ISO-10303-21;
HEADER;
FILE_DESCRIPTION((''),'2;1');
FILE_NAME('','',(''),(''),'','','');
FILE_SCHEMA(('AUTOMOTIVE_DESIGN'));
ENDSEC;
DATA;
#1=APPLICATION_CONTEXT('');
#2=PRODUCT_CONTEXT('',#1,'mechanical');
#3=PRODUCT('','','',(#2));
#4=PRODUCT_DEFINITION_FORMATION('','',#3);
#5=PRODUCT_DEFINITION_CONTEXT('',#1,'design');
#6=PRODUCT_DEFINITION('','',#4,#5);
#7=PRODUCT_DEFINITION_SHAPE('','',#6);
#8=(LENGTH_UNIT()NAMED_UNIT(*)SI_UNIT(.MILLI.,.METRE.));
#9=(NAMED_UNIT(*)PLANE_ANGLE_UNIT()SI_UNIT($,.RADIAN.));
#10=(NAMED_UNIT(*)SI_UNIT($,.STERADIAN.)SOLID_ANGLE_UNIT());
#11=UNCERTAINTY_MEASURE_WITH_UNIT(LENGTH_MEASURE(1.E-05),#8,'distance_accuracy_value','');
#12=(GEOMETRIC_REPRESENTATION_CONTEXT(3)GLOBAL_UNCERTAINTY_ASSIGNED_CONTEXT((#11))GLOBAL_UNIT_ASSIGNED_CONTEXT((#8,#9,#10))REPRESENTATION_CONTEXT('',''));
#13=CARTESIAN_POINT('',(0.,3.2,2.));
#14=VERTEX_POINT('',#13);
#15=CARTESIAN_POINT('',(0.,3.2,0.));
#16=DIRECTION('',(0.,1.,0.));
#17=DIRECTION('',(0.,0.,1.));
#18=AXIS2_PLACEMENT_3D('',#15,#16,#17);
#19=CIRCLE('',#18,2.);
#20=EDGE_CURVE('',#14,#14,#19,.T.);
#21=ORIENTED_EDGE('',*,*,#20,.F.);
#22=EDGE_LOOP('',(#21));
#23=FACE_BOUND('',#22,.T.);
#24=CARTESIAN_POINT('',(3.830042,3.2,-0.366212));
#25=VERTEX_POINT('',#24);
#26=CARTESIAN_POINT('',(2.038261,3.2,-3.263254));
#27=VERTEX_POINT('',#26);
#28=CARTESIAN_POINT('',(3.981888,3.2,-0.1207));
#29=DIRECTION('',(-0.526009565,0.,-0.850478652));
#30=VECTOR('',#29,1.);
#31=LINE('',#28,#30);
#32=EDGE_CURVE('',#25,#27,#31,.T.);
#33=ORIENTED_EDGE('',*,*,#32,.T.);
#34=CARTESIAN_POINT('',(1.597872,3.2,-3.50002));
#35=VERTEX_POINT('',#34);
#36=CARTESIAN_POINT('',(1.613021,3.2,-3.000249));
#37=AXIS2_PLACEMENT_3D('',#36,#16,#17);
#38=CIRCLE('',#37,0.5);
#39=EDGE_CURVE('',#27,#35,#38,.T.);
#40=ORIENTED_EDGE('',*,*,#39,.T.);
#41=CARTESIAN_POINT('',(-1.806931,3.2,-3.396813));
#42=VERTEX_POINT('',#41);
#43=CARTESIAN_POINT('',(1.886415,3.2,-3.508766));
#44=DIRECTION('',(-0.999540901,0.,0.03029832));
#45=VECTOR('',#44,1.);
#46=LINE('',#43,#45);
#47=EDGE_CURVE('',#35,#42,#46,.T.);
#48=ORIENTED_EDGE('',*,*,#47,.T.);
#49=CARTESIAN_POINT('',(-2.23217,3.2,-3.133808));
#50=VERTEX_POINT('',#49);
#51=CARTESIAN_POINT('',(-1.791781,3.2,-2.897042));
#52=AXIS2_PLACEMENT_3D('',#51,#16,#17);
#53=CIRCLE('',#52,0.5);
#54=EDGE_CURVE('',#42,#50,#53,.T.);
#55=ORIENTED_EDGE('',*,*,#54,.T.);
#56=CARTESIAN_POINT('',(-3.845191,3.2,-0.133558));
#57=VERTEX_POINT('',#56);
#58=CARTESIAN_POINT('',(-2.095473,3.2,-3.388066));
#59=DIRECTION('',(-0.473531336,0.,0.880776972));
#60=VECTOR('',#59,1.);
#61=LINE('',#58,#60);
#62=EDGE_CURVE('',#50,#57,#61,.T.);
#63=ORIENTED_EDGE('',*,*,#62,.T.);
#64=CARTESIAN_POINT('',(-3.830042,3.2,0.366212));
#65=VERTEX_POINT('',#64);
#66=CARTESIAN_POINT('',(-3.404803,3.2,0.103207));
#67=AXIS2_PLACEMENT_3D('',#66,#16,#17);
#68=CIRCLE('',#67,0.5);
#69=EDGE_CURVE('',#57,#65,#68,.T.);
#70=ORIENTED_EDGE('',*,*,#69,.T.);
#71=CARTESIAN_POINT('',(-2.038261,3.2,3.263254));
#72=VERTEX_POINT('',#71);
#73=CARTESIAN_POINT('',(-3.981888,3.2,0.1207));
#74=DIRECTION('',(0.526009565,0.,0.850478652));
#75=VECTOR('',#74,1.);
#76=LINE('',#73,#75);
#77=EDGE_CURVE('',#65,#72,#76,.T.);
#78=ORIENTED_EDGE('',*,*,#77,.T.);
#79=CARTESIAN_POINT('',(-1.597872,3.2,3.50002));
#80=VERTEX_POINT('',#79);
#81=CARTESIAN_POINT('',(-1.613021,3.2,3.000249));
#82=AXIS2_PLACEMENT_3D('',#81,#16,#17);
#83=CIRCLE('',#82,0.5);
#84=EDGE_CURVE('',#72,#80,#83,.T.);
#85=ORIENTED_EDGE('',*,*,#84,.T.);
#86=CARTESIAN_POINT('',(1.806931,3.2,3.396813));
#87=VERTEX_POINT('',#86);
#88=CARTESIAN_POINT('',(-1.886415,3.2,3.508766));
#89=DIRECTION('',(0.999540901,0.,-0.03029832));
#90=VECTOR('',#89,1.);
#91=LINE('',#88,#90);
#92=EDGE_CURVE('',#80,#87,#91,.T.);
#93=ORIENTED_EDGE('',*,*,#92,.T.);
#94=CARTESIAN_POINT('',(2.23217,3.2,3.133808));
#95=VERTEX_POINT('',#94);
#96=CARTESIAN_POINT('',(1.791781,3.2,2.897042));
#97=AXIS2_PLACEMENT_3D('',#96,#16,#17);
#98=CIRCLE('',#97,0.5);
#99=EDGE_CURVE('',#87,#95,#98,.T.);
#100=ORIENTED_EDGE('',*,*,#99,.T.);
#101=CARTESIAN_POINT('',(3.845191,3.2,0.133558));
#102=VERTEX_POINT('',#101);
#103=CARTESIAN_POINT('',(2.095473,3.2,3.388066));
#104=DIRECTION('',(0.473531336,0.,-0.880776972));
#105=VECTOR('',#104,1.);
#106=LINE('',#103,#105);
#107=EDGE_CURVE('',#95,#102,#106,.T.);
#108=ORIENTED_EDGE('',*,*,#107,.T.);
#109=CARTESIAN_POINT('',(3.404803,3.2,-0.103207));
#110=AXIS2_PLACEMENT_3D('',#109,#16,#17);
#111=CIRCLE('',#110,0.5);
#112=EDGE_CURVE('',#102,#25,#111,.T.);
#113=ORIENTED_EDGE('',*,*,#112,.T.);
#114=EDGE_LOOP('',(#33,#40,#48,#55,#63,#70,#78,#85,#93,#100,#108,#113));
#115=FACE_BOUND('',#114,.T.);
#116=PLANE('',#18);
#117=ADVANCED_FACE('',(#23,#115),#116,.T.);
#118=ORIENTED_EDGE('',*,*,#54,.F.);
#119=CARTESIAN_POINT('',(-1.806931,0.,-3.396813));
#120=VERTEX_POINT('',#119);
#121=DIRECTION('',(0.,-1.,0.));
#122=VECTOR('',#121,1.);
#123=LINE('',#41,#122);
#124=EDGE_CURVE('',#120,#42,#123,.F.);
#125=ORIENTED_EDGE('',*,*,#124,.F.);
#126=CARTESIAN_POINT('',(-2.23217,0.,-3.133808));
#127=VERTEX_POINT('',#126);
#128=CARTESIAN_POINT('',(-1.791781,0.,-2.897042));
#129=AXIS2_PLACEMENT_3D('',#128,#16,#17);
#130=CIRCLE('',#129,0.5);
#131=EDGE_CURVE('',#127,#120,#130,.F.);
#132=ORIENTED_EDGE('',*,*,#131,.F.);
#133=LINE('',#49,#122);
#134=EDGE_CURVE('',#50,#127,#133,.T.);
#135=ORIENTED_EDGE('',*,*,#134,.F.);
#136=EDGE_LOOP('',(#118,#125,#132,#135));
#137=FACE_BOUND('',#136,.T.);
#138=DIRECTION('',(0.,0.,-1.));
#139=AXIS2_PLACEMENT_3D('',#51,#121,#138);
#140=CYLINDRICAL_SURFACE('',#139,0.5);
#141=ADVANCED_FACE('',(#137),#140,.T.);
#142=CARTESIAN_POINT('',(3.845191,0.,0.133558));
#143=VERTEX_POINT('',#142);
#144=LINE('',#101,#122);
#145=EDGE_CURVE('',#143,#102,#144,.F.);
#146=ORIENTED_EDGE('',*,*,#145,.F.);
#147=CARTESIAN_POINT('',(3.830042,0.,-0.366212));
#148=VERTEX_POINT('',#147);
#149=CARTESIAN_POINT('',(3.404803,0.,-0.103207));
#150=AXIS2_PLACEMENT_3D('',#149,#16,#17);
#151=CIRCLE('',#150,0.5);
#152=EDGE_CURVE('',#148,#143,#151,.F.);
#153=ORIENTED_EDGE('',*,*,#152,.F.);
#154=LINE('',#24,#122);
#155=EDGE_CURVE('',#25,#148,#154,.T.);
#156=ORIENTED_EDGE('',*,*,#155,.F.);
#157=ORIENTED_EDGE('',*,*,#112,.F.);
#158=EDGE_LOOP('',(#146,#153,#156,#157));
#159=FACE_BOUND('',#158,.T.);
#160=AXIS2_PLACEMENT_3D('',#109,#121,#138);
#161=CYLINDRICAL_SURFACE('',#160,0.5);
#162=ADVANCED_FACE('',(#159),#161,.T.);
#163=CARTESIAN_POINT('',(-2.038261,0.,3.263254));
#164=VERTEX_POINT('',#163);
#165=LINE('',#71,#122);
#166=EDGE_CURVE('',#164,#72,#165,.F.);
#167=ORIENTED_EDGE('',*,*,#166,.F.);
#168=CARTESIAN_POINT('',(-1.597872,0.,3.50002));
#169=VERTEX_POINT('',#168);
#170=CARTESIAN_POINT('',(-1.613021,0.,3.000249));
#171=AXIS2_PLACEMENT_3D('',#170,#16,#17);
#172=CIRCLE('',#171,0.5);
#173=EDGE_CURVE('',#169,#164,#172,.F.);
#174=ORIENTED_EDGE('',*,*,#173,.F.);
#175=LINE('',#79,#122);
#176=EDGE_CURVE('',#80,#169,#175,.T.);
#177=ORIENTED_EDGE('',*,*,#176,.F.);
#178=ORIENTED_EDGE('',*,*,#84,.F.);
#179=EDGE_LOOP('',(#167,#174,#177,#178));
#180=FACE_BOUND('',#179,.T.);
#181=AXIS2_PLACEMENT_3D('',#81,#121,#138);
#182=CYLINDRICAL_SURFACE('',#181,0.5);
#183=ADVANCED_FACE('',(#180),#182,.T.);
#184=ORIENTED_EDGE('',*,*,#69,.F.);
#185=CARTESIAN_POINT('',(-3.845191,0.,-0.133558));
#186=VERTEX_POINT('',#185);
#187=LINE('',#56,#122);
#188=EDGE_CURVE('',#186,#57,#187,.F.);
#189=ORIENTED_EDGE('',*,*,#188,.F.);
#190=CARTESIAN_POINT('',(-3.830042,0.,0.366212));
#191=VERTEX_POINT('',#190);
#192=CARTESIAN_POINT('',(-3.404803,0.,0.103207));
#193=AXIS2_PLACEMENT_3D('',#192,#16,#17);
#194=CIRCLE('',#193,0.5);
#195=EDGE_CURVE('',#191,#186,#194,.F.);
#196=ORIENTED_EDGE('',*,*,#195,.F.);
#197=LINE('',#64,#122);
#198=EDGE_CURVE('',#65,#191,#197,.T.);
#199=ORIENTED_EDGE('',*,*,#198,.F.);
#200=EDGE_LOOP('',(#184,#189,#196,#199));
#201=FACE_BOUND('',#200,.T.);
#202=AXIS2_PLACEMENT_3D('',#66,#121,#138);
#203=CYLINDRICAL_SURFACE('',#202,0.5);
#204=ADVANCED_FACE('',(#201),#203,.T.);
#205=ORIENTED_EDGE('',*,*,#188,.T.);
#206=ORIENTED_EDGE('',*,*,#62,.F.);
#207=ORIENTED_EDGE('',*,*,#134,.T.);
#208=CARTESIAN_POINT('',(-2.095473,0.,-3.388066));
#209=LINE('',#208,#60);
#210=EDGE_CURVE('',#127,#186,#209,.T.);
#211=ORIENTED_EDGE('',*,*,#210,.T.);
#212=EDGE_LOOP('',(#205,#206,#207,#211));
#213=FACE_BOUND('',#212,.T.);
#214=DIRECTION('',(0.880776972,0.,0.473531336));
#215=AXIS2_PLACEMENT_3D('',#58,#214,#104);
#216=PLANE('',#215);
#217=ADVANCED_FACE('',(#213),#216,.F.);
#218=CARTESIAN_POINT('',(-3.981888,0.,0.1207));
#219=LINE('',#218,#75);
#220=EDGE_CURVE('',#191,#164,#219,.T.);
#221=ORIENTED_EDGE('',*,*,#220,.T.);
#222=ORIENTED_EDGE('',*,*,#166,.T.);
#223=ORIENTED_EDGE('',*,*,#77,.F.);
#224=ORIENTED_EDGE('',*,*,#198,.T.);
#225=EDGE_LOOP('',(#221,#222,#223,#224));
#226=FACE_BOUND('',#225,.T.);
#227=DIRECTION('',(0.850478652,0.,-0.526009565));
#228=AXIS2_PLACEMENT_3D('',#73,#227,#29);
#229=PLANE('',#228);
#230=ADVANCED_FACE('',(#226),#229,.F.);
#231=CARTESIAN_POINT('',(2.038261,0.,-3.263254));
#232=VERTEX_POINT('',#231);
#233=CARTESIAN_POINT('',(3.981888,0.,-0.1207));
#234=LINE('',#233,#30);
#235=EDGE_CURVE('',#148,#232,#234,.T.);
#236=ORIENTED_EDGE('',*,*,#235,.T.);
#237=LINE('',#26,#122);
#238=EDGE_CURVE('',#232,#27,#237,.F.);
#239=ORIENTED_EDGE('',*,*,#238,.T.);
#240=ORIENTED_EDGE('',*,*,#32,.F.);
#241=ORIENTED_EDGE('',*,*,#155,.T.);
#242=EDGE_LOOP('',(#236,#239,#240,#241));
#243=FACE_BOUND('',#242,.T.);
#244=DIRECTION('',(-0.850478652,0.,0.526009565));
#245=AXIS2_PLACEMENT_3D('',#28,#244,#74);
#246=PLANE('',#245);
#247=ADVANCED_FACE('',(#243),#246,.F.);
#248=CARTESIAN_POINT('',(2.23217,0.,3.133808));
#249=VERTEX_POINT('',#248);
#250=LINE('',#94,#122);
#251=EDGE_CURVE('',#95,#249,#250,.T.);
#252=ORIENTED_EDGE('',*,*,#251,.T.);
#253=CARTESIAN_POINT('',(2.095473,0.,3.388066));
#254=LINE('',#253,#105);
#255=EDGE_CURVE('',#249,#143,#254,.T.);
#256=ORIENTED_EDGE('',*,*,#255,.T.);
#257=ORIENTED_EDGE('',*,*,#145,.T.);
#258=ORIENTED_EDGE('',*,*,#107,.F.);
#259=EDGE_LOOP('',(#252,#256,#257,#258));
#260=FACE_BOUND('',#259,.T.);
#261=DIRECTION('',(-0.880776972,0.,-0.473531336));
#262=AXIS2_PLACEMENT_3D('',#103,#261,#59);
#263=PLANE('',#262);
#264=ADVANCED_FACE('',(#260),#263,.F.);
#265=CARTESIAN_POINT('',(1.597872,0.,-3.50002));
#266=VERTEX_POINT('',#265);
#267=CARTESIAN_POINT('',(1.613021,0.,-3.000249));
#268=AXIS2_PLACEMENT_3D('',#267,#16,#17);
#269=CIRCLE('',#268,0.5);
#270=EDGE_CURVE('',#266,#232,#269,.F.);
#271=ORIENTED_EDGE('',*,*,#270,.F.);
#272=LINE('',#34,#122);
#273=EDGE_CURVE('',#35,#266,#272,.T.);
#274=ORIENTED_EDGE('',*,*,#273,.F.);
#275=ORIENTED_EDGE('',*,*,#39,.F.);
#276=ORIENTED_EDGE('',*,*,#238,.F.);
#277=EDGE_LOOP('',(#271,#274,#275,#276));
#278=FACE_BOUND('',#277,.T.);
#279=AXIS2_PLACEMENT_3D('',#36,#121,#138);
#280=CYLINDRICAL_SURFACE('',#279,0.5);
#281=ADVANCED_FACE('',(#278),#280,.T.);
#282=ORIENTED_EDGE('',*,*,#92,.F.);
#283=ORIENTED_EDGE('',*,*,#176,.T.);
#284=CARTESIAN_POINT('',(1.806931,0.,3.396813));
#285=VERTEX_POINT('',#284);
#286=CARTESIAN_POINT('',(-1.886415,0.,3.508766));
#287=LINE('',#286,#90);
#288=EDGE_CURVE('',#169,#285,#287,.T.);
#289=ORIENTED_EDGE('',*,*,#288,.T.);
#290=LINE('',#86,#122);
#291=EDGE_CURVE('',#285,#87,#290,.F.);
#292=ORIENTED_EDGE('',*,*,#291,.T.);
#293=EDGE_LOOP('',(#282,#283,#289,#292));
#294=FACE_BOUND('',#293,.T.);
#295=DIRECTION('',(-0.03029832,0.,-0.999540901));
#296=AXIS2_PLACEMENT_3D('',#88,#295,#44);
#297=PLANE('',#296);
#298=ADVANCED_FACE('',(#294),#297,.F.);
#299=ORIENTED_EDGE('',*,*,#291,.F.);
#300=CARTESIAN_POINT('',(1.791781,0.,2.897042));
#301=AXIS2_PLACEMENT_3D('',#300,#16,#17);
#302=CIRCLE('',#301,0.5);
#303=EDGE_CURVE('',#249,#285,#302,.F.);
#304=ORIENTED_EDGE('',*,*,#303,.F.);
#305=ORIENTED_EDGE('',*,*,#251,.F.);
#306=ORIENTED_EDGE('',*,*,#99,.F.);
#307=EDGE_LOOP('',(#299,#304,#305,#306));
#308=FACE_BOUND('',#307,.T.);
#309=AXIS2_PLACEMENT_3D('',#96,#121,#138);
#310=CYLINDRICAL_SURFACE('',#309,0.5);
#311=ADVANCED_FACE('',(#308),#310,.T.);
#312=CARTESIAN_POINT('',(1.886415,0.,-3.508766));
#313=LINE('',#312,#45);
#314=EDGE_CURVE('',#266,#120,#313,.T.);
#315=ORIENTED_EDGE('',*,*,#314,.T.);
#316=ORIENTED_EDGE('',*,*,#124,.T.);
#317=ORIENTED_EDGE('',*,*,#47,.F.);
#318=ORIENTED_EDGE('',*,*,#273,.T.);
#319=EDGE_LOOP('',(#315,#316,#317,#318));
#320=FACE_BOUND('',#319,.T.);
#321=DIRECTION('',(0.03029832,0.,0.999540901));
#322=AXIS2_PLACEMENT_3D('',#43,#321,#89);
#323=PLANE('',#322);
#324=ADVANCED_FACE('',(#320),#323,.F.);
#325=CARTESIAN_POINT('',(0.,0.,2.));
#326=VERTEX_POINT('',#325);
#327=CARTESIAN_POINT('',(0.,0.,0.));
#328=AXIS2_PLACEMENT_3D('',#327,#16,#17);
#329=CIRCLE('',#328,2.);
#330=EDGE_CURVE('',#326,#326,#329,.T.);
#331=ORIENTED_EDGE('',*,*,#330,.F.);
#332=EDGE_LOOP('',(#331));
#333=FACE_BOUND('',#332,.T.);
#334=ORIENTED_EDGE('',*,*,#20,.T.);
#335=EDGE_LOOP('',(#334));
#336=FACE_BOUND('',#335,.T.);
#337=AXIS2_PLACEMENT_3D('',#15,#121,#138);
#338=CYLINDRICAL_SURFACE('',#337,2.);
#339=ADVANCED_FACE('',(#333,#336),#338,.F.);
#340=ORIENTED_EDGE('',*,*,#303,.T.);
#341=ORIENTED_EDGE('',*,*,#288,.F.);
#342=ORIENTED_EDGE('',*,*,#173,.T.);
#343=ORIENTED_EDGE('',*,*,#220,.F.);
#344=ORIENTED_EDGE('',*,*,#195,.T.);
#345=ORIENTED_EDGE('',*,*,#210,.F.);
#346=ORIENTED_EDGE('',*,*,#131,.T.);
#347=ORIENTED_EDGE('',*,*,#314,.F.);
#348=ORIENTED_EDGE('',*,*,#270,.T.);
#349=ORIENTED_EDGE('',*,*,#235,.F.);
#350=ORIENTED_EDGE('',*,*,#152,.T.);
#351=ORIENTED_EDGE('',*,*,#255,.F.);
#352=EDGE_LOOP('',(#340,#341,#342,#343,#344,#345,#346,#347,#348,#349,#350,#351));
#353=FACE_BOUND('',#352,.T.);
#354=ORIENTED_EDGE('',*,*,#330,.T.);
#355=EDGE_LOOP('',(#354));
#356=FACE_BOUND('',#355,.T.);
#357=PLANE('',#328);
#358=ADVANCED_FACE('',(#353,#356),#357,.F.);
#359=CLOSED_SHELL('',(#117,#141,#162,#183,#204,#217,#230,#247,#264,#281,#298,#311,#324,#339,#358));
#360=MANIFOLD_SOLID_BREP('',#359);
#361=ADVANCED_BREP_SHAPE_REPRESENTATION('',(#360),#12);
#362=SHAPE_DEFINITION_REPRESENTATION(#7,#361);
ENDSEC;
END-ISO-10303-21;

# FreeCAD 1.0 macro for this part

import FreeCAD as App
import Part
import Sketcher

V = App.Vector


def edges_at(feature, points):
    """Names of the edges that pass closest to the given points."""
    edges = feature.Shape.Edges
    near = lambda p: min(range(len(edges)), key=lambda i: edges[i].distToShape(Part.Vertex(*p))[0])
    return sorted({f"Edge{near(p) + 1}" for p in points})


def add_polygon(sketch, points):
    """Adds a closed chain of lines whose ends are joined by coincident constraints."""
    first, n = sketch.GeometryCount, len(points)
    for a, b in zip(points, points[1:] + points[:1]):
        sketch.addGeometry(Part.LineSegment(App.Vector(*a, 0), App.Vector(*b, 0)), False)
    for i in range(n):
        sketch.addConstraint(Sketcher.Constraint("Coincident", first + i, 2, first + (i + 1) % n, 1))

doc = App.newDocument("Part")
body = doc.addObject("PartDesign::Body", "Body")

sketch1 = doc.addObject("Sketcher::SketchObject", "Sketch")
body.addObject(sketch1)
sketch1.AttachmentSupport = (doc.XZ_Plane, [""])
sketch1.MapMode = "FlatFace"
add_polygon(sketch1, [(2.095473, 3.388066), (3.981888, -0.1207), (1.886415, -3.508766), (-2.095473, -3.388066), (-3.981888, 0.1207), (-1.886415, 3.508766)])
sketch1.addGeometry(Part.Circle(V(0, 0, 0), V(0, 0, 1), 2), False)
sketch1.addConstraint(Sketcher.Constraint("Coincident", 6, 3, -1, 1))
sketch1.addConstraint(Sketcher.Constraint("Symmetric", 0, 2, 3, 2, -1, 1))
sketch1.addConstraint(Sketcher.Constraint("Symmetric", 1, 2, 4, 2, -1, 1))
sketch1.addConstraint(Sketcher.Constraint("Symmetric", 2, 2, 5, 2, -1, 1))
sketch1.addConstraint(Sketcher.Constraint("Equal", 0, 1))
sketch1.addConstraint(Sketcher.Constraint("Equal", 1, 2))
sketch1.addConstraint(Sketcher.Constraint("Diameter", 6, 4.0))
sketch1.addConstraint(Sketcher.Constraint("DistanceY", 0, 2, -1, 1, 0.1207))
sketch1.addConstraint(Sketcher.Constraint("DistanceY", 1, 2, 2, 2, 0.1207))
sketch1.addConstraint(Sketcher.Constraint("DistanceX", 2, 2, 0, 2, 6.077361))
sketch1.addConstraint(Sketcher.Constraint("DistanceX", 2, 2, 4, 2, 0.209058))
pad1 = doc.addObject("PartDesign::Pad", "Pad")
body.addObject(pad1)
pad1.Profile = sketch1
pad1.Length = 3.2
pad1.Reversed = True
doc.recompute()

fillet = doc.addObject("PartDesign::Fillet", "Fillet")
body.addObject(fillet)
fillet.Base = (pad1, edges_at(pad1, [
    (-1.886, 1.6, 3.509),
    (-3.982, 1.6, 0.121),
    (-2.095, 1.6, -3.388),
    (1.886, 1.6, -3.509),
    (3.982, 1.6, -0.121),
    (2.095, 1.6, 3.388),
]))
fillet.Radius = 0.5

doc.recompute()
